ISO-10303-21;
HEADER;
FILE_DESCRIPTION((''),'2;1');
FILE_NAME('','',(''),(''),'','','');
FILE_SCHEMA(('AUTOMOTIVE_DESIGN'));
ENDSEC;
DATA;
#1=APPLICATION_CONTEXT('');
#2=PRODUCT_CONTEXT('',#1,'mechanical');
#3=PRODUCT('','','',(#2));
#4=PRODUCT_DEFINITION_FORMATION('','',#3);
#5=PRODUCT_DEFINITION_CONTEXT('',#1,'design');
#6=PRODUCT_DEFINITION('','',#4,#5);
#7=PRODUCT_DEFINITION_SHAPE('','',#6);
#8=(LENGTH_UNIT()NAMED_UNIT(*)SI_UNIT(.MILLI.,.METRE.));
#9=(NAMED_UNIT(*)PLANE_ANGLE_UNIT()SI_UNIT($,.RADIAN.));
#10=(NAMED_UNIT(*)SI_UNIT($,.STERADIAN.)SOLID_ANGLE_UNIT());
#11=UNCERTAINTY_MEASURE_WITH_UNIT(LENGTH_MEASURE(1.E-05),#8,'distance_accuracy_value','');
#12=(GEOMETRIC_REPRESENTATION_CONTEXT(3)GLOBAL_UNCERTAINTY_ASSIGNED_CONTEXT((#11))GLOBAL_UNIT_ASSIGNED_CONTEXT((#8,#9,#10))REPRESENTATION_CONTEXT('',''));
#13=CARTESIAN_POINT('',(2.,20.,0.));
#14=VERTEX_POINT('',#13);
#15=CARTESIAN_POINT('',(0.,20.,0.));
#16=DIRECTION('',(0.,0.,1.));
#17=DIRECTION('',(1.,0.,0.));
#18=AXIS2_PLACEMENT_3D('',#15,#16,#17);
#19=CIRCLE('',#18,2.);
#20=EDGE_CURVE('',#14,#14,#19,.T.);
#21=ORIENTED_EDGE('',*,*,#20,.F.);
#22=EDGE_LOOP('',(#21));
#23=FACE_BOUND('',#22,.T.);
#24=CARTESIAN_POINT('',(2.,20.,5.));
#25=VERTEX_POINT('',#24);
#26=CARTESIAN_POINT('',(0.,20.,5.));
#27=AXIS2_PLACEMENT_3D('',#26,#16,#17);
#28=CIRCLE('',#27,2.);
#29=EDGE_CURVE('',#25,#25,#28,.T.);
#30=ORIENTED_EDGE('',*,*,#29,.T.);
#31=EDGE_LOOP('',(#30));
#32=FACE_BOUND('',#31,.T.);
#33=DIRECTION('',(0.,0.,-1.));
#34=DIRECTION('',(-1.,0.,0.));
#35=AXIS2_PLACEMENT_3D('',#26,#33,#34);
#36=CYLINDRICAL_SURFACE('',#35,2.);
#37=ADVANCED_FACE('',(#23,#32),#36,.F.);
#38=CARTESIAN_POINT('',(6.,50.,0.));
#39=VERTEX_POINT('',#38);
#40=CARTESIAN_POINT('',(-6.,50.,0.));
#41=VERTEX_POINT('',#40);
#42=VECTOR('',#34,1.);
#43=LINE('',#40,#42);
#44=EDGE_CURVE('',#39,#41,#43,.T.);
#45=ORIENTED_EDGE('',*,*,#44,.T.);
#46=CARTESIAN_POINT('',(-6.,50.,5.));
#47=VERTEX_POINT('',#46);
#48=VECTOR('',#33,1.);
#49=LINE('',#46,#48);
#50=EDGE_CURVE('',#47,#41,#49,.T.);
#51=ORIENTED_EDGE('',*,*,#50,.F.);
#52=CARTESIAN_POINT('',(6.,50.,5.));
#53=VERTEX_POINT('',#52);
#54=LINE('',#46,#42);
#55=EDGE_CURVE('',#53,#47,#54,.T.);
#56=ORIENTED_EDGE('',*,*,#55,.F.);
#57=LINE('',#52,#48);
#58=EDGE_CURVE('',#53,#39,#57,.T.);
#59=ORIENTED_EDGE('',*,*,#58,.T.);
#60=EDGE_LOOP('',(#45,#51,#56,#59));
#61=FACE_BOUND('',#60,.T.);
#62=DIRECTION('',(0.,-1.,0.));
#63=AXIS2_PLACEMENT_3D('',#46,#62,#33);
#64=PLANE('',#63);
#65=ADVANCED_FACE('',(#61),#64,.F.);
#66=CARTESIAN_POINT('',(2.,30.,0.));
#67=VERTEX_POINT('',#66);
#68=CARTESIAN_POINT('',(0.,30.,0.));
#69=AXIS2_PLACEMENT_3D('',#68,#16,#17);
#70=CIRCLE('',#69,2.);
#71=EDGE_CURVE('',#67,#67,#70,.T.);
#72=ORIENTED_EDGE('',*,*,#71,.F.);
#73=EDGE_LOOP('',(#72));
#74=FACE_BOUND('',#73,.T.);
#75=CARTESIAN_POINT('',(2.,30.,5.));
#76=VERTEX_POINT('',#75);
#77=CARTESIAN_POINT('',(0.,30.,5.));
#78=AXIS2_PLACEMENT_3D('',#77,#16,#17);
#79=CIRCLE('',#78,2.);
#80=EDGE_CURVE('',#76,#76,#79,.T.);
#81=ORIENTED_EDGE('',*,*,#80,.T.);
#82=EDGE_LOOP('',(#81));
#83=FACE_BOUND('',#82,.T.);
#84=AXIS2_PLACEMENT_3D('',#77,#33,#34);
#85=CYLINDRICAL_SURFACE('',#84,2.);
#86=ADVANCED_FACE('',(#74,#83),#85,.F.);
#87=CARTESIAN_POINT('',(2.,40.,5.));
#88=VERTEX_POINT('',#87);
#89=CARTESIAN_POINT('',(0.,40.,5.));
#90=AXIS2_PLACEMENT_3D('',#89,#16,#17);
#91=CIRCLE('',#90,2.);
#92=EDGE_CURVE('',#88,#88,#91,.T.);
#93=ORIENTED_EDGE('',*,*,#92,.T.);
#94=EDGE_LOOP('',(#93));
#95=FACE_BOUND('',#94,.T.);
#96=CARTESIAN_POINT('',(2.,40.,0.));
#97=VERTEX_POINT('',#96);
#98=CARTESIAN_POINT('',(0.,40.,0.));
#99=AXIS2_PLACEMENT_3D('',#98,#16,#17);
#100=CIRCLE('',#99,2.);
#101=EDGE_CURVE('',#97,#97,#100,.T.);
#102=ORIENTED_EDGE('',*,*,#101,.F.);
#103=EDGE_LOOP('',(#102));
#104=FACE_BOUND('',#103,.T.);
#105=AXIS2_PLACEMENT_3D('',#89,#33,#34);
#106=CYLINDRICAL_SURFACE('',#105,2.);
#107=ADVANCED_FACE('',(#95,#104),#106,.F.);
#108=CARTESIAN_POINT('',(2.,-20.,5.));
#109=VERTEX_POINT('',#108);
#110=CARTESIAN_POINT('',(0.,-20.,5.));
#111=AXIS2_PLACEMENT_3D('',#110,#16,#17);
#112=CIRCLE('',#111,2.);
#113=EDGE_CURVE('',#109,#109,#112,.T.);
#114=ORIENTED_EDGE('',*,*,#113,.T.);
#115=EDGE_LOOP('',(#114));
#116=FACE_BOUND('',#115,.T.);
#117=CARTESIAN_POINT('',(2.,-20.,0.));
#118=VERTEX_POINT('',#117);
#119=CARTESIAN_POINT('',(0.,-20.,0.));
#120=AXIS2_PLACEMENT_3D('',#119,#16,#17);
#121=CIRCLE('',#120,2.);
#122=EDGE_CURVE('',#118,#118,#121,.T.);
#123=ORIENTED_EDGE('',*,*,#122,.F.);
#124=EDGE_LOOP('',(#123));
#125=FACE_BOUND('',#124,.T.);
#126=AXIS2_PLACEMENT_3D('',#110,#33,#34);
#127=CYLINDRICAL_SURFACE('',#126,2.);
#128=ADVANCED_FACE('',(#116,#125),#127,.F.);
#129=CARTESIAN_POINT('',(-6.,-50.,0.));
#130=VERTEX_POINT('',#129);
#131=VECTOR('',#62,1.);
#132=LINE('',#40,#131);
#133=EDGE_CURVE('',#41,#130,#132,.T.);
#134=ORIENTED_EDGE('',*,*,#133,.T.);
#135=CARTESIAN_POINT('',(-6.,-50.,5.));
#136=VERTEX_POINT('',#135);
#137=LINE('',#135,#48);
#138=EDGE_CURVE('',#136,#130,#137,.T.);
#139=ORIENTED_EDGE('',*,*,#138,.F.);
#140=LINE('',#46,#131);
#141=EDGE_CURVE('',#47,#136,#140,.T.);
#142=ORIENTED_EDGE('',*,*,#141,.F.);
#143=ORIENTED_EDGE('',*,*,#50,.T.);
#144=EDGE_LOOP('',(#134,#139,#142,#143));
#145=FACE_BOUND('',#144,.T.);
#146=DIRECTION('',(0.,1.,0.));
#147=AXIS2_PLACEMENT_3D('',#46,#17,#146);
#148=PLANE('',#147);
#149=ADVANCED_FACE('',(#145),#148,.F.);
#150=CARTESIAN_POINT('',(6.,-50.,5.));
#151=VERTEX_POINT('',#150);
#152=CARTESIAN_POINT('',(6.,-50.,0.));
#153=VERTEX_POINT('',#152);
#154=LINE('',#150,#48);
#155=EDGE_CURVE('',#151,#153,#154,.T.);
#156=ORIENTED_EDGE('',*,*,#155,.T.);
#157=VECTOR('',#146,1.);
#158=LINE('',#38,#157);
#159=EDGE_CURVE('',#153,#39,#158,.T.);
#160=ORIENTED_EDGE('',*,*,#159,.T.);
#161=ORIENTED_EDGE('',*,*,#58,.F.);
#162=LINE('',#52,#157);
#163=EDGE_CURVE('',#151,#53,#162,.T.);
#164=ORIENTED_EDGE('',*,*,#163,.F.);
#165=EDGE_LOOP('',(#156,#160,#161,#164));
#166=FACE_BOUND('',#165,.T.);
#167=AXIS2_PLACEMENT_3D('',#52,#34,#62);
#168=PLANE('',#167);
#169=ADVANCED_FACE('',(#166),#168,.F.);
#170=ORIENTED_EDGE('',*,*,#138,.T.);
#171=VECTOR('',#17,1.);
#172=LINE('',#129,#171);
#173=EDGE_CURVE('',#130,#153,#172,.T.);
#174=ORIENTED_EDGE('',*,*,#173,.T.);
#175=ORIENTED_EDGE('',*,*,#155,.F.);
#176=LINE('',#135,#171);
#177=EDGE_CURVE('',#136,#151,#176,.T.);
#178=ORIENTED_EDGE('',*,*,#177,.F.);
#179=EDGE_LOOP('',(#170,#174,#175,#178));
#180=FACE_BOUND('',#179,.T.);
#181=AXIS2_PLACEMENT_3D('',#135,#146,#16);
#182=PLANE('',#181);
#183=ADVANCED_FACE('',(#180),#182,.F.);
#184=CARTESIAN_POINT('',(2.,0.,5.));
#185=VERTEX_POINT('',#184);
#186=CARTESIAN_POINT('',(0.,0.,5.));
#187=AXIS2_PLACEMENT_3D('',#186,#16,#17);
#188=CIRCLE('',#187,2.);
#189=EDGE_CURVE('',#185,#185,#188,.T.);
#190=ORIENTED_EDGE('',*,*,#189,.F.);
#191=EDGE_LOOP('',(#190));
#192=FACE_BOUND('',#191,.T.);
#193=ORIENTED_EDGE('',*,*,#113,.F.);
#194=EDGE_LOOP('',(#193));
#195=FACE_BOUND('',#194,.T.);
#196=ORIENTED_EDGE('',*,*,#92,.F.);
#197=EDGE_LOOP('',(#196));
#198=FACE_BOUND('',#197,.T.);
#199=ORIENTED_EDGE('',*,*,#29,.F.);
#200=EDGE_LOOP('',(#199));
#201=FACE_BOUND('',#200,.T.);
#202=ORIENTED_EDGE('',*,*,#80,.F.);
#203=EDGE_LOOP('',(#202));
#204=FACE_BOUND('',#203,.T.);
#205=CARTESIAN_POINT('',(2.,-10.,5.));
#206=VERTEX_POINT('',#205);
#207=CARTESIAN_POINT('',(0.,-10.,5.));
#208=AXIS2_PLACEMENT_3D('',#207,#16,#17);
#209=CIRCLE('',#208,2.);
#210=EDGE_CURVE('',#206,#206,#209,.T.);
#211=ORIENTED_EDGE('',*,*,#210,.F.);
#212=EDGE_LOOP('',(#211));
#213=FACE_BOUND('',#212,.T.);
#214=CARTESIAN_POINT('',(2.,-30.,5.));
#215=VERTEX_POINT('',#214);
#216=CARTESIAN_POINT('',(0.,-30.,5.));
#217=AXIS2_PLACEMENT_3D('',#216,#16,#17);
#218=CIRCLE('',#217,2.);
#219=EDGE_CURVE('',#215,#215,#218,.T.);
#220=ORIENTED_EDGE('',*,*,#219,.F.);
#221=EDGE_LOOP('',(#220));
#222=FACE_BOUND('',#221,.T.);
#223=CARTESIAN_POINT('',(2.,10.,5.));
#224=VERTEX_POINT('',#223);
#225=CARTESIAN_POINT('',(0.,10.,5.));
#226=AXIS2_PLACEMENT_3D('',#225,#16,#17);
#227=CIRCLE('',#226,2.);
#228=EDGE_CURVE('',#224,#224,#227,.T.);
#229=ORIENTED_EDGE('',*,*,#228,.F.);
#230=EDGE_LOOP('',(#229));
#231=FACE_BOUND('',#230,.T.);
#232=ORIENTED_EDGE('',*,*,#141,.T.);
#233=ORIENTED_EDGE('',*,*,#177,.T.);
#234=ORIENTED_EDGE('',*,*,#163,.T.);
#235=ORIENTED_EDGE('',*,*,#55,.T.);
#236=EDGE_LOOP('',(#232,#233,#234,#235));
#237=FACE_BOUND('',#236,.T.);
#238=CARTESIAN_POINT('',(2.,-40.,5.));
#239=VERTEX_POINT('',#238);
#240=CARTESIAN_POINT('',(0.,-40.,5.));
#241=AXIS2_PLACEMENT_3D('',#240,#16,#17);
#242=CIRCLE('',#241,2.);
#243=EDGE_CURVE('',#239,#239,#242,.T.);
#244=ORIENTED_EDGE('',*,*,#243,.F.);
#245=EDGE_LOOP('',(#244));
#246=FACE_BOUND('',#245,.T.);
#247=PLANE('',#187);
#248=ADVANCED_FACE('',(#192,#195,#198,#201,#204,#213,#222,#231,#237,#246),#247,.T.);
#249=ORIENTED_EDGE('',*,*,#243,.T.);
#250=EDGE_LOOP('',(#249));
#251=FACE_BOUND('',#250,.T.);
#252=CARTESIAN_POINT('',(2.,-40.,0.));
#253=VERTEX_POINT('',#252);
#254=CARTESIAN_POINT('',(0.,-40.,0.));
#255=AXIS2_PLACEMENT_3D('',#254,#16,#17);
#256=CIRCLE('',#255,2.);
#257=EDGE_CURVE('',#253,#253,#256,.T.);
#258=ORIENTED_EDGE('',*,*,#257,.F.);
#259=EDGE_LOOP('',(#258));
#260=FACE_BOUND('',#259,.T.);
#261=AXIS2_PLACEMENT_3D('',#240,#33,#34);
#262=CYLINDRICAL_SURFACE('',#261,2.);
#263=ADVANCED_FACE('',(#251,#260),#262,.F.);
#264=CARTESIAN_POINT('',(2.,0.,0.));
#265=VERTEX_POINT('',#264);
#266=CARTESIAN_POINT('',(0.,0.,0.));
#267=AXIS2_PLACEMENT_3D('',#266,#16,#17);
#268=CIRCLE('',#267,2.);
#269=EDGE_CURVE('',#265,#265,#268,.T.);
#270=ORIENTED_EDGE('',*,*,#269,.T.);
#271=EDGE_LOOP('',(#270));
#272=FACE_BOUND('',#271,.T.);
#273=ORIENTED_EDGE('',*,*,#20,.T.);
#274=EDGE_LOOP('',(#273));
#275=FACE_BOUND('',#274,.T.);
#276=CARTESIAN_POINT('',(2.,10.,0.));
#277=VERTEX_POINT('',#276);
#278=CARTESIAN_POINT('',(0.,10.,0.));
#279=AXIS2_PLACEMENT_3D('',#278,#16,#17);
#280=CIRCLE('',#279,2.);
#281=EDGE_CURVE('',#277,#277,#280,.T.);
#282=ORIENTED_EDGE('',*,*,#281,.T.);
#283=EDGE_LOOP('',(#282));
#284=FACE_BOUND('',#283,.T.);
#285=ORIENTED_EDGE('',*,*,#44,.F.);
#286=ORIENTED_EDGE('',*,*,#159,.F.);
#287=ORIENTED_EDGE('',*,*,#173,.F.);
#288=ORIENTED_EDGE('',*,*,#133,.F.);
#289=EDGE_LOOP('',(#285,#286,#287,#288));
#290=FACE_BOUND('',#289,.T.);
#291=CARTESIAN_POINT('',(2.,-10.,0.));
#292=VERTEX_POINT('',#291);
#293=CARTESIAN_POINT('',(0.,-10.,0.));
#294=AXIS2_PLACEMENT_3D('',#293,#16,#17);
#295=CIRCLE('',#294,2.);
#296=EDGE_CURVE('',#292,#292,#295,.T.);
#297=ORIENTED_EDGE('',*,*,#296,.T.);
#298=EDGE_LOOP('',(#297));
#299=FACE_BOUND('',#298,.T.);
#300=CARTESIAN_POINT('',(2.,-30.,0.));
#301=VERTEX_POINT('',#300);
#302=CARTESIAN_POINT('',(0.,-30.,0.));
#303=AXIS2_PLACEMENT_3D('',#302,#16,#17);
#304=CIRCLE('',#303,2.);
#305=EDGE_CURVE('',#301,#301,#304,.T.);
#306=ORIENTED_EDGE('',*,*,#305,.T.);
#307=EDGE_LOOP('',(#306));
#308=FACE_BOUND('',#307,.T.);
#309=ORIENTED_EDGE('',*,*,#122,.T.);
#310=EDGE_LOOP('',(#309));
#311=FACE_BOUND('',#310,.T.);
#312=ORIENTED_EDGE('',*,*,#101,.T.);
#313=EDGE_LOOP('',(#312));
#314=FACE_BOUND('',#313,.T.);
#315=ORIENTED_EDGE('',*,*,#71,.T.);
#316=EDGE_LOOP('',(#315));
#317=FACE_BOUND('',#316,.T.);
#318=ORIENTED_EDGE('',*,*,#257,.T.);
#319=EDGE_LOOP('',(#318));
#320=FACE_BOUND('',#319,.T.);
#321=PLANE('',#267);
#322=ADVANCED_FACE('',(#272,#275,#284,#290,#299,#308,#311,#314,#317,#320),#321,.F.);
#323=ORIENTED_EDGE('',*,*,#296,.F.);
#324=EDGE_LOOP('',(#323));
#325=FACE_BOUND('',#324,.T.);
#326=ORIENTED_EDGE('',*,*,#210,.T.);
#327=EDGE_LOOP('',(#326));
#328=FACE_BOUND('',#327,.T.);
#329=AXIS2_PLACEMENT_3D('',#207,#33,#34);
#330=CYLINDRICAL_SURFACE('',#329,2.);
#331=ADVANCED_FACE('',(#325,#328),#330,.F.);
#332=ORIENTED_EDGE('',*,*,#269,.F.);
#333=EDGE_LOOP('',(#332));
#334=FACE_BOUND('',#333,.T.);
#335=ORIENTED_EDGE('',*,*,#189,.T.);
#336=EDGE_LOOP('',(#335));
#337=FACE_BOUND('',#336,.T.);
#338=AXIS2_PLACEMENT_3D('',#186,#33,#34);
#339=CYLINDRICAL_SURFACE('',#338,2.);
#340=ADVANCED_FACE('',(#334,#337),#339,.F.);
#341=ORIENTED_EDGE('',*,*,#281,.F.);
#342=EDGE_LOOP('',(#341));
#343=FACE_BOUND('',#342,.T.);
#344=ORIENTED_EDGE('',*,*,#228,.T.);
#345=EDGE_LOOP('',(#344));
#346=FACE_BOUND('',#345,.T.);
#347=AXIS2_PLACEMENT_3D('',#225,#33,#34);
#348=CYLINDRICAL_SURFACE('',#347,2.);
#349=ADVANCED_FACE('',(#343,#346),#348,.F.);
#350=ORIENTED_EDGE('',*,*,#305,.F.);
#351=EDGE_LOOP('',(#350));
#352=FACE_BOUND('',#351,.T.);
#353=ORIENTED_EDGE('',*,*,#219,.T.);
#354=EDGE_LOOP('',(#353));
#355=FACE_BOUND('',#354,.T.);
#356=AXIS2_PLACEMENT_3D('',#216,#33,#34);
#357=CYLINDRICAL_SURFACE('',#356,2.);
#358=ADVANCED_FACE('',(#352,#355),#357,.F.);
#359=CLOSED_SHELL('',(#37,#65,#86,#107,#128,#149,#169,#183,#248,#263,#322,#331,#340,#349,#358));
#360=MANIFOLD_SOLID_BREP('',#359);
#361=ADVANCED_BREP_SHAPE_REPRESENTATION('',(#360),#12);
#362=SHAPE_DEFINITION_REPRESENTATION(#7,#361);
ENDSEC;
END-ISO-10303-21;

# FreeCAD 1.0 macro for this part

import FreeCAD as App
import Part
import Sketcher


def add_polygon(sketch, points):
    """Adds a closed chain of lines whose ends are joined by coincident constraints."""
    first, n = sketch.GeometryCount, len(points)
    for a, b in zip(points, points[1:] + points[:1]):
        sketch.addGeometry(Part.LineSegment(App.Vector(*a, 0), App.Vector(*b, 0)), False)
    for i in range(n):
        sketch.addConstraint(Sketcher.Constraint("Coincident", first + i, 2, first + (i + 1) % n, 1))

doc = App.newDocument("Part")
body = doc.addObject("PartDesign::Body", "Body")

# Sketch on XY plane
sketch1 = body.newObject("Sketcher::SketchObject", "Sketch")
sketch1.AttachmentSupport = (doc.getObject("XY_Plane"), [""])
sketch1.MapMode = "FlatFace"
add_polygon(sketch1, [(-6, 50), (-6, -50), (6, -50), (6, 50)])  # lines 0-3
sketch1.addGeometry(Part.Circle(App.Vector(0, -40, 0), App.Vector(0, 0, 1), 2), False)  # 4
sketch1.addGeometry(Part.Circle(App.Vector(0, -30, 0), App.Vector(0, 0, 1), 2), False)  # 5
sketch1.addGeometry(Part.Circle(App.Vector(0, -20, 0), App.Vector(0, 0, 1), 2), False)  # 6
sketch1.addGeometry(Part.Circle(App.Vector(0, -10, 0), App.Vector(0, 0, 1), 2), False)  # 7
sketch1.addGeometry(Part.Circle(App.Vector(0, 0, 0), App.Vector(0, 0, 1), 2), False)  # 8
sketch1.addGeometry(Part.Circle(App.Vector(0, 10, 0), App.Vector(0, 0, 1), 2), False)  # 9
sketch1.addGeometry(Part.Circle(App.Vector(0, 20, 0), App.Vector(0, 0, 1), 2), False)  # 10
sketch1.addGeometry(Part.Circle(App.Vector(0, 30, 0), App.Vector(0, 0, 1), 2), False)  # 11
sketch1.addGeometry(Part.Circle(App.Vector(0, 40, 0), App.Vector(0, 0, 1), 2), False)  # 12
sketch1.addConstraint([
    Sketcher.Constraint("Vertical", 0),
    Sketcher.Constraint("Horizontal", 1),
    Sketcher.Constraint("Vertical", 2),
    Sketcher.Constraint("Horizontal", 3),
    Sketcher.Constraint("Coincident", 8, 3, -1, 1),
    Sketcher.Constraint("Equal", 4, 5),
    Sketcher.Constraint("Equal", 5, 6),
    Sketcher.Constraint("Equal", 6, 7),
    Sketcher.Constraint("Equal", 7, 8),
    Sketcher.Constraint("Equal", 8, 9),
    Sketcher.Constraint("Equal", 9, 10),
    Sketcher.Constraint("Equal", 10, 11),
    Sketcher.Constraint("Equal", 11, 12),
    Sketcher.Constraint("Symmetric", 7, 3, 9, 3, -1, 1),
    Sketcher.Constraint("Symmetric", 6, 3, 10, 3, -1, 1),
    Sketcher.Constraint("Symmetric", 5, 3, 11, 3, -1, 1),
    Sketcher.Constraint("Symmetric", 4, 3, 12, 3, -1, 1),
    Sketcher.Constraint("Symmetric", 0, 2, 2, 2, -1, 1),
    Sketcher.Constraint("PointOnObject", 4, 3, -2),
    Sketcher.Constraint("PointOnObject", 5, 3, -2),
    Sketcher.Constraint("PointOnObject", 6, 3, -2),
    Sketcher.Constraint("PointOnObject", 7, 3, -2),
    Sketcher.Constraint("Diameter", 4, 4.0),
    Sketcher.Constraint("DistanceX", 1, 1, 1, 2, 12.0),
    Sketcher.Constraint("DistanceY", 0, 2, 0, 1, 100.0),
    Sketcher.Constraint("DistanceY", 4, 3, -1, 1, 40.0),
    Sketcher.Constraint("DistanceY", 5, 3, -1, 1, 30.0),
    Sketcher.Constraint("DistanceY", 6, 3, -1, 1, 20.0),
    Sketcher.Constraint("DistanceY", 7, 3, -1, 1, 10.0),
])
pad1 = body.newObject("PartDesign::Pad", "Pad")
pad1.Profile = sketch1
pad1.Length = 5

doc.recompute()
